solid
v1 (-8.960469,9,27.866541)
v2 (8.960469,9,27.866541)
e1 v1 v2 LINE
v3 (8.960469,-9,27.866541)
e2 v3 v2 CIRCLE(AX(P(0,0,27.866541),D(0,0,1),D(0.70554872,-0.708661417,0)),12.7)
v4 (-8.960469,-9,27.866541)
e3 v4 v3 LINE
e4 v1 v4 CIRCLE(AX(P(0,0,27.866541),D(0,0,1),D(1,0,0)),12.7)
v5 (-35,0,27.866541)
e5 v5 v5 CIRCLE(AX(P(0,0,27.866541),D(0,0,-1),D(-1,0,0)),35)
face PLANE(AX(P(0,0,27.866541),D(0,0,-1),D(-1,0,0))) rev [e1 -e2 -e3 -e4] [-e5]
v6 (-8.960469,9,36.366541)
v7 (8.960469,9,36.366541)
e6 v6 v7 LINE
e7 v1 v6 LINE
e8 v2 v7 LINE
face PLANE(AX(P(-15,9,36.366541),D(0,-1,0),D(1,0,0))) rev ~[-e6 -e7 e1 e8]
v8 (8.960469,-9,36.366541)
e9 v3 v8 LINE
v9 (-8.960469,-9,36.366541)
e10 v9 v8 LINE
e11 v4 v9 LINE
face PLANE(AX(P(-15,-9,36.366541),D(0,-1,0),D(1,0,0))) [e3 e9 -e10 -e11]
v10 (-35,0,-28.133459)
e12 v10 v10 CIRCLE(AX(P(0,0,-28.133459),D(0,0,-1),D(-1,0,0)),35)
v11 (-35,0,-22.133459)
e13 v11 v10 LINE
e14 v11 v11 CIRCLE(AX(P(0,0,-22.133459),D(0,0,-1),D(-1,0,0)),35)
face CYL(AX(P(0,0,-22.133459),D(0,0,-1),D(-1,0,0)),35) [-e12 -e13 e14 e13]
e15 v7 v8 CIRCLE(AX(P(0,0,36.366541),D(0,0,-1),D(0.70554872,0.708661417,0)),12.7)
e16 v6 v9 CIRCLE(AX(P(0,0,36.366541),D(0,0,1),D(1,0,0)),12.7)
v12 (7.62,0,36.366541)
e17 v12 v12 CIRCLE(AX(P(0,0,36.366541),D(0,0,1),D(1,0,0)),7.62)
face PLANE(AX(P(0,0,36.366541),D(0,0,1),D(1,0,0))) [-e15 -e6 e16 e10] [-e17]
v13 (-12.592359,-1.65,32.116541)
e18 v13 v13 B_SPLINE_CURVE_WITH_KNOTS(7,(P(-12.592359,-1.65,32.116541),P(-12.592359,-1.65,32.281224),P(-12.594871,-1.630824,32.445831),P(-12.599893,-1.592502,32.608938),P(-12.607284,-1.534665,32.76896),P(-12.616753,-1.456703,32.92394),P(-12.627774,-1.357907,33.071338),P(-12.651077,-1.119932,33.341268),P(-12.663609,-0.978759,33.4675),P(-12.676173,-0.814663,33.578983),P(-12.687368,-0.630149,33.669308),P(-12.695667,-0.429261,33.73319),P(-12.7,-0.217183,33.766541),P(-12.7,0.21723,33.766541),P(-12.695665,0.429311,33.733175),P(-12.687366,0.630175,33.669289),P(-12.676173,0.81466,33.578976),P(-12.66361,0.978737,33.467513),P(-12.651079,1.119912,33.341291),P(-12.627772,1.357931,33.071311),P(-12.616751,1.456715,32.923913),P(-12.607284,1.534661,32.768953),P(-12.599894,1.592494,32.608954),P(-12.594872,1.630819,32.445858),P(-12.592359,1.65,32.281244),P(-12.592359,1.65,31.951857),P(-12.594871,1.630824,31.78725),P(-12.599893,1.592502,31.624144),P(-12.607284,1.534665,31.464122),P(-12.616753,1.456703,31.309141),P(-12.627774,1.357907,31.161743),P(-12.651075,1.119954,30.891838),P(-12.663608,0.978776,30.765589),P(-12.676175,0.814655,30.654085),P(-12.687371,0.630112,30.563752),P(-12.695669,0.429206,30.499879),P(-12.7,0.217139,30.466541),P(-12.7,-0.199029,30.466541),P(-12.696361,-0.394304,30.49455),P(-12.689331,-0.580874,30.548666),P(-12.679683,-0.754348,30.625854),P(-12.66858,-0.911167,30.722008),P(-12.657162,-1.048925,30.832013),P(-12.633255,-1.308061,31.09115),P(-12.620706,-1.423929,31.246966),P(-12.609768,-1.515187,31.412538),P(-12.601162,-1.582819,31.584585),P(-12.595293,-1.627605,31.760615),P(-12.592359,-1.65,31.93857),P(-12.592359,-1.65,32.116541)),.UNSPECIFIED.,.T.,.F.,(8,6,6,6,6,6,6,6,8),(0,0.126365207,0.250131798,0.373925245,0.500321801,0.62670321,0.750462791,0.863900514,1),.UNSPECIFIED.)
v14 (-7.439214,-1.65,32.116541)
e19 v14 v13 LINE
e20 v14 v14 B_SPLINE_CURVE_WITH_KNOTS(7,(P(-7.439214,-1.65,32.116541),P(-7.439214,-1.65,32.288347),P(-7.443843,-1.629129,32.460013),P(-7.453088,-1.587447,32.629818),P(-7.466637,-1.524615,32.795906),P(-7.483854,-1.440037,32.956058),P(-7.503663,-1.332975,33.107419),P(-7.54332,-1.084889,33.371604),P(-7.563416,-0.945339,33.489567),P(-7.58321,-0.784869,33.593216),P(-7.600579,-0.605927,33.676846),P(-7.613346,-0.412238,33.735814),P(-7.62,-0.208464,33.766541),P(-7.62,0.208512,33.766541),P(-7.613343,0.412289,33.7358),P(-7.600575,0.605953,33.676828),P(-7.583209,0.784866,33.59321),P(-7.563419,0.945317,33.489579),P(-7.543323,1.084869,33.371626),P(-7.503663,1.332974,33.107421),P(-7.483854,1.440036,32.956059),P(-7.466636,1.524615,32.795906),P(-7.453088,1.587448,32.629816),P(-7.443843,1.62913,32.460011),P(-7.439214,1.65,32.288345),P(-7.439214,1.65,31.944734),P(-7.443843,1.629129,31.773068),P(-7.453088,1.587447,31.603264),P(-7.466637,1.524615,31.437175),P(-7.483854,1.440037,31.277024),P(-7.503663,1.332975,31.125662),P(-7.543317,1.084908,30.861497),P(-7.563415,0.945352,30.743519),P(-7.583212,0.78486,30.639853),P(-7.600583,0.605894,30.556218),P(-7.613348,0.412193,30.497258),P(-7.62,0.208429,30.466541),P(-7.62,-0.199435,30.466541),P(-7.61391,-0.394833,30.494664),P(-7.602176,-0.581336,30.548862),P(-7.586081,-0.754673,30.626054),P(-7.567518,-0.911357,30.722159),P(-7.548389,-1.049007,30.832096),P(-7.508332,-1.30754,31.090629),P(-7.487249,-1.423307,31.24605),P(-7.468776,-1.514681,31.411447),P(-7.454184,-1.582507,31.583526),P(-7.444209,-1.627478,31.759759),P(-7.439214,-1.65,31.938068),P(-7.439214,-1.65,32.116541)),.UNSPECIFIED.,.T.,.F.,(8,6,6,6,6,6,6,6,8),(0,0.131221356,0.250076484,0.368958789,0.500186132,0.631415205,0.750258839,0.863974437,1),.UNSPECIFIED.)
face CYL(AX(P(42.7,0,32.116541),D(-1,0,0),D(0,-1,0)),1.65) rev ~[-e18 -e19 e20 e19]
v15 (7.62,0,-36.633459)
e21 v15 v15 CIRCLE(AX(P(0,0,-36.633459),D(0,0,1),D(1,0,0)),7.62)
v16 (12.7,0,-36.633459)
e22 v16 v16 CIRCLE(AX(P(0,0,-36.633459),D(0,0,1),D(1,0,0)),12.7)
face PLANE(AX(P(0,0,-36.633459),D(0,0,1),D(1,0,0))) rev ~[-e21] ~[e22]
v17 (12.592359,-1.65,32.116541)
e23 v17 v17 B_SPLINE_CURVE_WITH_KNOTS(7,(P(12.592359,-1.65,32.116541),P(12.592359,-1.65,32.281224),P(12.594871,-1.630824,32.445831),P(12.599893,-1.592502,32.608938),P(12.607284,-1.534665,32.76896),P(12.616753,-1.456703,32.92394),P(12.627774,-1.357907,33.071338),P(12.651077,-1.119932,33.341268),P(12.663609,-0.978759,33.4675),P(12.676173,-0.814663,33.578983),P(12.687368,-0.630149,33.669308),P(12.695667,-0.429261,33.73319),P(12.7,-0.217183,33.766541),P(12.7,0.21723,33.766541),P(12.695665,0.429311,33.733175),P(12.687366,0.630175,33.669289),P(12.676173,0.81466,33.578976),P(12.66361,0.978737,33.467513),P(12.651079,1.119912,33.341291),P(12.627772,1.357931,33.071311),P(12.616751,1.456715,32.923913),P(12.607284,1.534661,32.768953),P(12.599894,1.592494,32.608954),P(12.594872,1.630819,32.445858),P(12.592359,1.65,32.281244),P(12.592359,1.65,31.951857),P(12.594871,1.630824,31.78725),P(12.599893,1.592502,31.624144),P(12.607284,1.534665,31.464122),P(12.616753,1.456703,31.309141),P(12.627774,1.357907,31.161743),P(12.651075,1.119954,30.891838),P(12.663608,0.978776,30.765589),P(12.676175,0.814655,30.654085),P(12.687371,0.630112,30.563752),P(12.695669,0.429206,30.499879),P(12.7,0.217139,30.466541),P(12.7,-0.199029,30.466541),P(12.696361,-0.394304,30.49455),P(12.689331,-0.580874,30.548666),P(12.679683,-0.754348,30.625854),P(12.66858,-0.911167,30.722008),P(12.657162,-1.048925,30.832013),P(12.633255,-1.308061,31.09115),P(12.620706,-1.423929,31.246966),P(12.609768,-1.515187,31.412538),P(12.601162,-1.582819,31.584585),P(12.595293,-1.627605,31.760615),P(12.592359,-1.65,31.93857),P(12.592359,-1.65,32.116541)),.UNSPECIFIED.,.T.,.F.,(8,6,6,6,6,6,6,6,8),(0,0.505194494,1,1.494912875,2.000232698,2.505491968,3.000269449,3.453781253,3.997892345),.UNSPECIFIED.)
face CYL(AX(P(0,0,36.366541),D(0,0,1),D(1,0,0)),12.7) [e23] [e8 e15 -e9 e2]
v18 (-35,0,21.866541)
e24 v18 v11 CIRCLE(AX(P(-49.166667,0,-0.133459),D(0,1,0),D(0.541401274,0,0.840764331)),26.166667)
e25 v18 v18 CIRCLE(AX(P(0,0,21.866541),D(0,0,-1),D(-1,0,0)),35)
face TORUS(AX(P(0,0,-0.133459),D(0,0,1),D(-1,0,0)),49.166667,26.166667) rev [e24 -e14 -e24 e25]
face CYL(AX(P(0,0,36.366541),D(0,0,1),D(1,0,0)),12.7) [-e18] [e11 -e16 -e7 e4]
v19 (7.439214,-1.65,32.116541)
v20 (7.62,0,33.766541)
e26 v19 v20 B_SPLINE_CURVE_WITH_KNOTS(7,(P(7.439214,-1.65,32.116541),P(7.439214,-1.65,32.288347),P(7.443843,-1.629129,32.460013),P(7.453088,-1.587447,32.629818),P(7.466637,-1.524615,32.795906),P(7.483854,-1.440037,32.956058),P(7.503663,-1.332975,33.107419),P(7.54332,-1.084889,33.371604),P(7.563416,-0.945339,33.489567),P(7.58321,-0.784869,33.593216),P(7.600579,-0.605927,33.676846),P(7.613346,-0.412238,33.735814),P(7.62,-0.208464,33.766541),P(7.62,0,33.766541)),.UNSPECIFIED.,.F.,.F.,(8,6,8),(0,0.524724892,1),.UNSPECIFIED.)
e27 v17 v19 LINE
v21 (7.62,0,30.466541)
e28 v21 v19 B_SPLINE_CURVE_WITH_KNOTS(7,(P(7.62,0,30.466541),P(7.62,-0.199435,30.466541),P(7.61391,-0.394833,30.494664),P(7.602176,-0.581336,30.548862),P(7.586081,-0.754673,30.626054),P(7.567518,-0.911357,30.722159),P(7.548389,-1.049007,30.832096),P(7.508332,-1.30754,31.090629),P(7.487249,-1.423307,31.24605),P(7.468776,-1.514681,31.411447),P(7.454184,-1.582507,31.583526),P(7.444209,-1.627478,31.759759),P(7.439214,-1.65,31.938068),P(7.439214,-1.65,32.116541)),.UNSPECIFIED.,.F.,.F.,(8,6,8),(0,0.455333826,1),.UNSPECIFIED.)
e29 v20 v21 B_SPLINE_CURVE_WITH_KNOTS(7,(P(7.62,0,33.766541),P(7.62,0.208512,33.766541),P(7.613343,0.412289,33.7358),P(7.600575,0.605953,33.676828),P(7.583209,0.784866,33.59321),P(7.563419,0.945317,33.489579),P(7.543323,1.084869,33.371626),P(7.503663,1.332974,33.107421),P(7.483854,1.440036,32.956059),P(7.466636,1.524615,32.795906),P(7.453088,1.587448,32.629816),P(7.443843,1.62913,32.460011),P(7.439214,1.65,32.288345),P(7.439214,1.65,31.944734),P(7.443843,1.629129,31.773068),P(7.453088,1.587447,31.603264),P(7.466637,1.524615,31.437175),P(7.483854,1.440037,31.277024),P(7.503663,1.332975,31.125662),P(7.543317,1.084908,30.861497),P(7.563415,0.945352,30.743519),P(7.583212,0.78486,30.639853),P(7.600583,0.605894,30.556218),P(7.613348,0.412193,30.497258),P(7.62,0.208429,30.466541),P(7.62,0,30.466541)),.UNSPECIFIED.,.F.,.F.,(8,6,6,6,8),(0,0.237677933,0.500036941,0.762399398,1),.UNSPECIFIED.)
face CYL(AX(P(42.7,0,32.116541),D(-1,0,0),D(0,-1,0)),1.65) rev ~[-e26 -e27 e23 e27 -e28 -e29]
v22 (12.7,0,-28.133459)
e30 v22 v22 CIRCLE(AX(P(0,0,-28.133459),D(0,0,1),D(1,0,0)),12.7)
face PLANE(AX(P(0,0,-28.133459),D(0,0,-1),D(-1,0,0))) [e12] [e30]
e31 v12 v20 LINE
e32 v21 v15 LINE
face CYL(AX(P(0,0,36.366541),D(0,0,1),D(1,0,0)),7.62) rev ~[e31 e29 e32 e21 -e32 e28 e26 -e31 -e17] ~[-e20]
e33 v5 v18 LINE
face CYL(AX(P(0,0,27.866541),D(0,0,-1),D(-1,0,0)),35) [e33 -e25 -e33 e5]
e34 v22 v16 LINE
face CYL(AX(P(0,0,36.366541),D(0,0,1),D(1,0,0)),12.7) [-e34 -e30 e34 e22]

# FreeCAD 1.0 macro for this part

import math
import FreeCAD as App
import Part
import Sketcher
from FreeCAD import Vector

doc = App.newDocument("Part")
params = doc.addObject("Spreadsheet::Sheet", "Params")
for row, (alias, value) in enumerate([
    ("sketch1_width", "35 mm"),
    ("sketch1_height", "56 mm"),
    ("sketch1_height2", "6 mm"),
    ("revolution_angle", "360 deg"),
    ("sketch2_diameter", "25.4 mm"),
    ("sketch3_diameter", "25.4 mm"),
    ("pad1_length", "73 mm"),
    ("sketch4_diameter", "15.24 mm"),
    ("sketch5_width", "30 mm"),
    ("pocket3_length", "8.5 mm"),
    ("sketch6_diameter", "3.3 mm"),
    ("hole_diameter", "3.3 mm"),
    ("hole_depth", "30 mm"),
], start=1):
    params.set(f"A{row}", alias)
    params.set(f"B{row}", "=" + value)
    params.setAlias(f"B{row}", alias)

body = doc.addObject("PartDesign::Body", "Body")

# Sketch on XZ plane
sketch1 = body.newObject("Sketcher::SketchObject", "Sketch")
sketch1.AttachmentSupport = (doc.getObject("XZ_Plane"), [""])
sketch1.MapMode = "FlatFace"
sketch1.addGeometry([
    Part.LineSegment(Vector(0, -28, 0), Vector(0, 28, 0)),  # 0
    Part.LineSegment(Vector(0, 28, 0), Vector(-35, 28, 0)),  # 1
    Part.LineSegment(Vector(-35, 28, 0), Vector(-35, 22, 0)),  # 2
    Part.ArcOfCircle(Part.Circle(Vector(-49, 0, 0), Vector(0, 0, 1), 26), math.radians(-57), math.radians(57)),  # 3
    Part.LineSegment(Vector(-35, -22, 0), Vector(-35, -28, 0)),  # 4
    Part.LineSegment(Vector(-35, -28, 0), Vector(0, -28, 0)),  # 5
], False)
sketch1.addConstraint([
    Sketcher.Constraint("Coincident", 0, 2, 1, 1),
    Sketcher.Constraint("Coincident", 1, 2, 2, 1),
    Sketcher.Constraint("Coincident", 2, 2, 3, 2),
    Sketcher.Constraint("Coincident", 3, 1, 4, 1),
    Sketcher.Constraint("Coincident", 4, 2, 5, 1),
    Sketcher.Constraint("Coincident", 5, 2, 0, 1),
    Sketcher.Constraint("Vertical", 0),
    Sketcher.Constraint("Horizontal", 1),
    Sketcher.Constraint("Vertical", 2),
    Sketcher.Constraint("Vertical", 4),
    Sketcher.Constraint("Horizontal", 5),
    Sketcher.Constraint("PointOnObject", 0, 2, -2),
    Sketcher.Constraint("Vertical", 2, 2, 3, 1),
    Sketcher.Constraint("Equal", 2, 4),
    Sketcher.Constraint("DistanceX", 1, 2, 1, 1, 35.0),
    Sketcher.Constraint("DistanceY", 0, 1, 0, 2, 56.0),
    Sketcher.Constraint("DistanceY", 2, 2, 2, 1, 6.0),
    Sketcher.Constraint("Radius", 3, 26.166667),
    Sketcher.Constraint("DistanceY", 3, 3, -1, 1, 0.133459),
])
sketch1.setExpression("Constraints[14]", "Params.sketch1_width")
sketch1.setExpression("Constraints[15]", "Params.sketch1_height")
sketch1.setExpression("Constraints[16]", "Params.sketch1_height2")
revolution = body.newObject("PartDesign::Revolution", "Revolution")
revolution.Profile = sketch1
revolution.ReferenceAxis = (sketch1, ["V_Axis"])
revolution.setExpression("Angle", "Params.revolution_angle")

# Sketch on XY plane
sketch2 = body.newObject("Sketcher::SketchObject", "Sketch001")
sketch2.AttachmentSupport = (doc.getObject("XY_Plane"), [""])
sketch2.MapMode = "FlatFace"
sketch2.AttachmentOffset = App.Placement(Vector(0, 0, 36.366541), App.Rotation())
sketch2.addGeometry(Part.Circle(Vector(0, 0, 0), Vector(0, 0, 1), 13), False)
sketch2.addConstraint([
    Sketcher.Constraint("Coincident", 0, 3, -1, 1),
    Sketcher.Constraint("Diameter", 0, 25.4),
])
sketch2.setExpression("Constraints[1]", "Params.sketch2_diameter")
pocket1 = body.newObject("PartDesign::Pocket", "Pocket")
pocket1.Profile = sketch2
pocket1.Type = "ThroughAll"

# Sketch on XY plane
sketch3 = body.newObject("Sketcher::SketchObject", "Sketch002")
sketch3.AttachmentSupport = (doc.getObject("XY_Plane"), [""])
sketch3.MapMode = "FlatFace"
sketch3.AttachmentOffset = App.Placement(Vector(0, 0, 36.366541), App.Rotation())
sketch3.addGeometry(Part.Circle(Vector(0, 0, 0), Vector(0, 0, 1), 13), False)
sketch3.addConstraint([
    Sketcher.Constraint("Coincident", 0, 3, -1, 1),
    Sketcher.Constraint("Diameter", 0, 25.4),
])
sketch3.setExpression("Constraints[1]", "Params.sketch3_diameter")
pad1 = body.newObject("PartDesign::Pad", "Pad")
pad1.Profile = sketch3
pad1.setExpression("Length", "Params.pad1_length")
pad1.Reversed = True

# Sketch on XY plane
sketch4 = body.newObject("Sketcher::SketchObject", "Sketch003")
sketch4.AttachmentSupport = (doc.getObject("XY_Plane"), [""])
sketch4.MapMode = "FlatFace"
sketch4.AttachmentOffset = App.Placement(Vector(0, 0, 36.366541), App.Rotation())
sketch4.addGeometry(Part.Circle(Vector(0, 0, 0), Vector(0, 0, 1), 8), False)
sketch4.addConstraint([
    Sketcher.Constraint("Coincident", 0, 3, -1, 1),
    Sketcher.Constraint("Diameter", 0, 15.24),
])
sketch4.setExpression("Constraints[1]", "Params.sketch4_diameter")
pocket2 = body.newObject("PartDesign::Pocket", "Pocket001")
pocket2.Profile = sketch4
pocket2.Type = "ThroughAll"

# Sketch on XY plane
sketch5 = body.newObject("Sketcher::SketchObject", "Sketch004")
sketch5.AttachmentSupport = (doc.getObject("XY_Plane"), [""])
sketch5.MapMode = "FlatFace"
sketch5.AttachmentOffset = App.Placement(Vector(0, 0, 36.366541), App.Rotation())
sketch5.addGeometry([
    Part.LineSegment(Vector(-15, -9, 0), Vector(-15, -13.4, 0)),  # 0
    Part.LineSegment(Vector(-15, -13.4, 0), Vector(15, -13.4, 0)),  # 1
    Part.LineSegment(Vector(15, -13.4, 0), Vector(15, -9, 0)),  # 2
    Part.LineSegment(Vector(15, -9, 0), Vector(-15, -9, 0)),  # 3
    Part.LineSegment(Vector(-15, 9, 0), Vector(15, 9, 0)),  # 4
    Part.LineSegment(Vector(15, 9, 0), Vector(15.8, 16.7, 0)),  # 5
    Part.LineSegment(Vector(15.8, 16.7, 0), Vector(-15, 16.7, 0)),  # 6
    Part.LineSegment(Vector(-15, 16.7, 0), Vector(-15, 9, 0)),  # 7
], False)
sketch5.addConstraint([
    Sketcher.Constraint("Coincident", 0, 2, 1, 1),
    Sketcher.Constraint("Coincident", 1, 2, 2, 1),
    Sketcher.Constraint("Coincident", 2, 2, 3, 1),
    Sketcher.Constraint("Coincident", 3, 2, 0, 1),
    Sketcher.Constraint("Coincident", 4, 2, 5, 1),
    Sketcher.Constraint("Coincident", 5, 2, 6, 1),
    Sketcher.Constraint("Coincident", 6, 2, 7, 1),
    Sketcher.Constraint("Coincident", 7, 2, 4, 1),
    Sketcher.Constraint("Vertical", 0),
    Sketcher.Constraint("Horizontal", 1),
    Sketcher.Constraint("Vertical", 2),
    Sketcher.Constraint("Horizontal", 3),
    Sketcher.Constraint("Horizontal", 4),
    Sketcher.Constraint("Horizontal", 6),
    Sketcher.Constraint("Vertical", 7),
    Sketcher.Constraint("Symmetric", 3, 2, 4, 2, -1, 1),
    Sketcher.Constraint("Vertical", 2, 2, 4, 2),
    Sketcher.Constraint("Vertical", 3, 2, 6, 2),
    Sketcher.Constraint("DistanceX", 1, 1, 1, 2, 30.0),
    Sketcher.Constraint("DistanceY", 2, 2, -1, 1, 9.0),
    Sketcher.Constraint("DistanceX", 6, 2, 6, 1, 30.773721),
    Sketcher.Constraint("Distance", 5, 7.761178),
    Sketcher.Constraint("DistanceY", 0, 2, 0, 1, 4.401733),
])
sketch5.setExpression("Constraints[18]", "Params.sketch5_width")
pocket3 = body.newObject("PartDesign::Pocket", "Pocket002")
pocket3.Profile = sketch5
pocket3.setExpression("Length", "Params.pocket3_length")

# Sketch on YZ plane
sketch6 = body.newObject("Sketcher::SketchObject", "Sketch005")
sketch6.AttachmentSupport = (doc.getObject("YZ_Plane"), [""])
sketch6.MapMode = "FlatFace"
sketch6.AttachmentOffset = App.Placement(Vector(0, 0, 12.7), App.Rotation())
sketch6.addGeometry(Part.Circle(Vector(0, 32.1, 0), Vector(0, 0, 1), 1.6), False)
sketch6.addConstraint([
    Sketcher.Constraint("PointOnObject", 0, 3, -2),
    Sketcher.Constraint("Diameter", 0, 3.3),
    Sketcher.Constraint("DistanceY", -1, 1, 0, 3, 32.116541),
])
sketch6.setExpression("Constraints[1]", "Params.sketch6_diameter")
doc.recompute()
hole = body.newObject("PartDesign::Hole", "Hole")
hole.Profile = sketch6
hole.ThreadType = "None"
hole.setExpression("Diameter", "Params.hole_diameter")
hole.DepthType = "Dimension"
hole.setExpression("Depth", "Params.hole_depth")
hole.DrillPoint = "Angled"
hole.DrillPointAngle = 118

doc.recompute()
